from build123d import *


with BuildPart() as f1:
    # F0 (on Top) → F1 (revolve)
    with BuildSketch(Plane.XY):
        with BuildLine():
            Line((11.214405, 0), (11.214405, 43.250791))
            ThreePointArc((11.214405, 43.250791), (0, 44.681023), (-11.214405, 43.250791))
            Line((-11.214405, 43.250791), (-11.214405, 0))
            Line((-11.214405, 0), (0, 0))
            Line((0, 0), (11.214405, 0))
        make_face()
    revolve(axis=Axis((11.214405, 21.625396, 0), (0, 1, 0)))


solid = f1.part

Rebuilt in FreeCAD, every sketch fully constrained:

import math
import FreeCAD as App
import Part
import Sketcher

doc = App.newDocument("Part")
body = doc.addObject("PartDesign::Body", "Body")

sketch1 = body.newObject("Sketcher::SketchObject", "Sketch")
sketch1.AttachmentSupport = (doc.getObject("XY_Plane"), [""])
sketch1.MapMode = "FlatFace"
sketch1.addGeometry([
    Part.LineSegment(App.Vector(11, 0, 0), App.Vector(11, 43, 0)),
    Part.ArcOfCircle(Part.Circle(App.Vector(0, 0, 0), App.Vector(0, 0, 1), 45), math.radians(75), math.radians(105)),
    Part.LineSegment(App.Vector(-11, 43, 0), App.Vector(-11, 0, 0)),
    Part.LineSegment(App.Vector(-11, 0, 0), App.Vector(11, 0, 0)),
], False)
sketch1.addGeometry(Part.LineSegment(App.Vector(11, 0, 0), App.Vector(11, 43, 0)), True)
sketch1.addConstraint([
    Sketcher.Constraint("Coincident", 0, 2, 1, 1),
    Sketcher.Constraint("Coincident", 1, 2, 2, 1),
    Sketcher.Constraint("Coincident", 2, 2, 3, 1),
    Sketcher.Constraint("Coincident", 3, 2, 0, 1),
    Sketcher.Constraint("Vertical", 0),
    Sketcher.Constraint("Vertical", 2),
    Sketcher.Constraint("Horizontal", 3),
    Sketcher.Constraint("Vertical", 4),
    Sketcher.Constraint("Coincident", 1, 3, -1, 1),
    Sketcher.Constraint("Coincident", 4, 1, 3, 2),
    Sketcher.Constraint("Symmetric", 2, 2, 3, 2, -1, 1),
    Sketcher.Constraint("Horizontal", 1, 2, 4, 2),
    Sketcher.Constraint("Radius", 1, 44.681018),
    Sketcher.Constraint("DistanceX", 3, 1, 3, 2, 22.42881),
])
revolution = body.newObject("PartDesign::Revolution", "Revolution")
revolution.Profile = sketch1
revolution.ReferenceAxis = (sketch1, ["Axis0"])
revolution.Angle = 360

doc.recompute()
